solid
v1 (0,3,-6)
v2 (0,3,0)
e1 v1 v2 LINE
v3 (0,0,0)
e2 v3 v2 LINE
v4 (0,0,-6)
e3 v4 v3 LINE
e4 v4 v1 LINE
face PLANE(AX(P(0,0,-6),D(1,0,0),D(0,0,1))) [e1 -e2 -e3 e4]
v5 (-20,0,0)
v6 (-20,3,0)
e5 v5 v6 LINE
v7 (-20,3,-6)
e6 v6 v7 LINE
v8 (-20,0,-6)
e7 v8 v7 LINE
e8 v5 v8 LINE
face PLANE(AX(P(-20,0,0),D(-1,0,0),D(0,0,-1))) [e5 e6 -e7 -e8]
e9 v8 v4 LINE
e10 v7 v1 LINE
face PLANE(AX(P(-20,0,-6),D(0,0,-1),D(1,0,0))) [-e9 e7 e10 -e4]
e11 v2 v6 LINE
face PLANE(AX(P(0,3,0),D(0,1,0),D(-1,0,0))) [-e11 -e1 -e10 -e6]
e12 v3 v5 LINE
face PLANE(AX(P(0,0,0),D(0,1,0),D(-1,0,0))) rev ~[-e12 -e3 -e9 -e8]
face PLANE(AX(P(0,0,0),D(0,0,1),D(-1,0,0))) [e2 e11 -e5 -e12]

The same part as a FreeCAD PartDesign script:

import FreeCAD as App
import Part
import Sketcher
from FreeCAD import Vector

doc = App.newDocument("Part")
params = doc.addObject("Spreadsheet::Sheet", "Params")
for row, (alias, value) in enumerate([
    ("sketch1_width", "20 mm"),
    ("sketch1_height", "6 mm"),
    ("pad1_length", "3 mm"),
], start=1):
    params.set(f"A{row}", alias)
    params.set(f"B{row}", "=" + value)
    params.setAlias(f"B{row}", alias)

body = doc.addObject("PartDesign::Body", "Body")

# Sketch on XZ plane
sketch1 = body.newObject("Sketcher::SketchObject", "Sketch")
sketch1.AttachmentSupport = (doc.getObject("XZ_Plane"), [""])
sketch1.MapMode = "FlatFace"
sketch1.addGeometry([
    Part.LineSegment(Vector(-20, 0, 0), Vector(0, 0, 0)),
    Part.LineSegment(Vector(0, 0, 0), Vector(0, -6, 0)),
    Part.LineSegment(Vector(0, -6, 0), Vector(-20, -6, 0)),
    Part.LineSegment(Vector(-20, -6, 0), Vector(-20, 0, 0)),
], False)
sketch1.addConstraint([
    Sketcher.Constraint("Coincident", 0, 2, 1, 1),
    Sketcher.Constraint("Coincident", 1, 2, 2, 1),
    Sketcher.Constraint("Coincident", 2, 2, 3, 1),
    Sketcher.Constraint("Coincident", 3, 2, 0, 1),
    Sketcher.Constraint("Horizontal", 0),
    Sketcher.Constraint("Vertical", 1),
    Sketcher.Constraint("Horizontal", 2),
    Sketcher.Constraint("Vertical", 3),
    Sketcher.Constraint("Coincident", 0, 2, -1, 1),
    Sketcher.Constraint("DistanceX", 0, 1, 0, 2, 20.0),
    Sketcher.Constraint("DistanceY", 1, 2, 1, 1, 6.0),
])
sketch1.setExpression("Constraints[9]", "Params.sketch1_width")
sketch1.setExpression("Constraints[10]", "Params.sketch1_height")
pad1 = body.newObject("PartDesign::Pad", "Pad")
pad1.Profile = sketch1
pad1.setExpression("Length", "Params.pad1_length")
pad1.Reversed = True

doc.recompute()
